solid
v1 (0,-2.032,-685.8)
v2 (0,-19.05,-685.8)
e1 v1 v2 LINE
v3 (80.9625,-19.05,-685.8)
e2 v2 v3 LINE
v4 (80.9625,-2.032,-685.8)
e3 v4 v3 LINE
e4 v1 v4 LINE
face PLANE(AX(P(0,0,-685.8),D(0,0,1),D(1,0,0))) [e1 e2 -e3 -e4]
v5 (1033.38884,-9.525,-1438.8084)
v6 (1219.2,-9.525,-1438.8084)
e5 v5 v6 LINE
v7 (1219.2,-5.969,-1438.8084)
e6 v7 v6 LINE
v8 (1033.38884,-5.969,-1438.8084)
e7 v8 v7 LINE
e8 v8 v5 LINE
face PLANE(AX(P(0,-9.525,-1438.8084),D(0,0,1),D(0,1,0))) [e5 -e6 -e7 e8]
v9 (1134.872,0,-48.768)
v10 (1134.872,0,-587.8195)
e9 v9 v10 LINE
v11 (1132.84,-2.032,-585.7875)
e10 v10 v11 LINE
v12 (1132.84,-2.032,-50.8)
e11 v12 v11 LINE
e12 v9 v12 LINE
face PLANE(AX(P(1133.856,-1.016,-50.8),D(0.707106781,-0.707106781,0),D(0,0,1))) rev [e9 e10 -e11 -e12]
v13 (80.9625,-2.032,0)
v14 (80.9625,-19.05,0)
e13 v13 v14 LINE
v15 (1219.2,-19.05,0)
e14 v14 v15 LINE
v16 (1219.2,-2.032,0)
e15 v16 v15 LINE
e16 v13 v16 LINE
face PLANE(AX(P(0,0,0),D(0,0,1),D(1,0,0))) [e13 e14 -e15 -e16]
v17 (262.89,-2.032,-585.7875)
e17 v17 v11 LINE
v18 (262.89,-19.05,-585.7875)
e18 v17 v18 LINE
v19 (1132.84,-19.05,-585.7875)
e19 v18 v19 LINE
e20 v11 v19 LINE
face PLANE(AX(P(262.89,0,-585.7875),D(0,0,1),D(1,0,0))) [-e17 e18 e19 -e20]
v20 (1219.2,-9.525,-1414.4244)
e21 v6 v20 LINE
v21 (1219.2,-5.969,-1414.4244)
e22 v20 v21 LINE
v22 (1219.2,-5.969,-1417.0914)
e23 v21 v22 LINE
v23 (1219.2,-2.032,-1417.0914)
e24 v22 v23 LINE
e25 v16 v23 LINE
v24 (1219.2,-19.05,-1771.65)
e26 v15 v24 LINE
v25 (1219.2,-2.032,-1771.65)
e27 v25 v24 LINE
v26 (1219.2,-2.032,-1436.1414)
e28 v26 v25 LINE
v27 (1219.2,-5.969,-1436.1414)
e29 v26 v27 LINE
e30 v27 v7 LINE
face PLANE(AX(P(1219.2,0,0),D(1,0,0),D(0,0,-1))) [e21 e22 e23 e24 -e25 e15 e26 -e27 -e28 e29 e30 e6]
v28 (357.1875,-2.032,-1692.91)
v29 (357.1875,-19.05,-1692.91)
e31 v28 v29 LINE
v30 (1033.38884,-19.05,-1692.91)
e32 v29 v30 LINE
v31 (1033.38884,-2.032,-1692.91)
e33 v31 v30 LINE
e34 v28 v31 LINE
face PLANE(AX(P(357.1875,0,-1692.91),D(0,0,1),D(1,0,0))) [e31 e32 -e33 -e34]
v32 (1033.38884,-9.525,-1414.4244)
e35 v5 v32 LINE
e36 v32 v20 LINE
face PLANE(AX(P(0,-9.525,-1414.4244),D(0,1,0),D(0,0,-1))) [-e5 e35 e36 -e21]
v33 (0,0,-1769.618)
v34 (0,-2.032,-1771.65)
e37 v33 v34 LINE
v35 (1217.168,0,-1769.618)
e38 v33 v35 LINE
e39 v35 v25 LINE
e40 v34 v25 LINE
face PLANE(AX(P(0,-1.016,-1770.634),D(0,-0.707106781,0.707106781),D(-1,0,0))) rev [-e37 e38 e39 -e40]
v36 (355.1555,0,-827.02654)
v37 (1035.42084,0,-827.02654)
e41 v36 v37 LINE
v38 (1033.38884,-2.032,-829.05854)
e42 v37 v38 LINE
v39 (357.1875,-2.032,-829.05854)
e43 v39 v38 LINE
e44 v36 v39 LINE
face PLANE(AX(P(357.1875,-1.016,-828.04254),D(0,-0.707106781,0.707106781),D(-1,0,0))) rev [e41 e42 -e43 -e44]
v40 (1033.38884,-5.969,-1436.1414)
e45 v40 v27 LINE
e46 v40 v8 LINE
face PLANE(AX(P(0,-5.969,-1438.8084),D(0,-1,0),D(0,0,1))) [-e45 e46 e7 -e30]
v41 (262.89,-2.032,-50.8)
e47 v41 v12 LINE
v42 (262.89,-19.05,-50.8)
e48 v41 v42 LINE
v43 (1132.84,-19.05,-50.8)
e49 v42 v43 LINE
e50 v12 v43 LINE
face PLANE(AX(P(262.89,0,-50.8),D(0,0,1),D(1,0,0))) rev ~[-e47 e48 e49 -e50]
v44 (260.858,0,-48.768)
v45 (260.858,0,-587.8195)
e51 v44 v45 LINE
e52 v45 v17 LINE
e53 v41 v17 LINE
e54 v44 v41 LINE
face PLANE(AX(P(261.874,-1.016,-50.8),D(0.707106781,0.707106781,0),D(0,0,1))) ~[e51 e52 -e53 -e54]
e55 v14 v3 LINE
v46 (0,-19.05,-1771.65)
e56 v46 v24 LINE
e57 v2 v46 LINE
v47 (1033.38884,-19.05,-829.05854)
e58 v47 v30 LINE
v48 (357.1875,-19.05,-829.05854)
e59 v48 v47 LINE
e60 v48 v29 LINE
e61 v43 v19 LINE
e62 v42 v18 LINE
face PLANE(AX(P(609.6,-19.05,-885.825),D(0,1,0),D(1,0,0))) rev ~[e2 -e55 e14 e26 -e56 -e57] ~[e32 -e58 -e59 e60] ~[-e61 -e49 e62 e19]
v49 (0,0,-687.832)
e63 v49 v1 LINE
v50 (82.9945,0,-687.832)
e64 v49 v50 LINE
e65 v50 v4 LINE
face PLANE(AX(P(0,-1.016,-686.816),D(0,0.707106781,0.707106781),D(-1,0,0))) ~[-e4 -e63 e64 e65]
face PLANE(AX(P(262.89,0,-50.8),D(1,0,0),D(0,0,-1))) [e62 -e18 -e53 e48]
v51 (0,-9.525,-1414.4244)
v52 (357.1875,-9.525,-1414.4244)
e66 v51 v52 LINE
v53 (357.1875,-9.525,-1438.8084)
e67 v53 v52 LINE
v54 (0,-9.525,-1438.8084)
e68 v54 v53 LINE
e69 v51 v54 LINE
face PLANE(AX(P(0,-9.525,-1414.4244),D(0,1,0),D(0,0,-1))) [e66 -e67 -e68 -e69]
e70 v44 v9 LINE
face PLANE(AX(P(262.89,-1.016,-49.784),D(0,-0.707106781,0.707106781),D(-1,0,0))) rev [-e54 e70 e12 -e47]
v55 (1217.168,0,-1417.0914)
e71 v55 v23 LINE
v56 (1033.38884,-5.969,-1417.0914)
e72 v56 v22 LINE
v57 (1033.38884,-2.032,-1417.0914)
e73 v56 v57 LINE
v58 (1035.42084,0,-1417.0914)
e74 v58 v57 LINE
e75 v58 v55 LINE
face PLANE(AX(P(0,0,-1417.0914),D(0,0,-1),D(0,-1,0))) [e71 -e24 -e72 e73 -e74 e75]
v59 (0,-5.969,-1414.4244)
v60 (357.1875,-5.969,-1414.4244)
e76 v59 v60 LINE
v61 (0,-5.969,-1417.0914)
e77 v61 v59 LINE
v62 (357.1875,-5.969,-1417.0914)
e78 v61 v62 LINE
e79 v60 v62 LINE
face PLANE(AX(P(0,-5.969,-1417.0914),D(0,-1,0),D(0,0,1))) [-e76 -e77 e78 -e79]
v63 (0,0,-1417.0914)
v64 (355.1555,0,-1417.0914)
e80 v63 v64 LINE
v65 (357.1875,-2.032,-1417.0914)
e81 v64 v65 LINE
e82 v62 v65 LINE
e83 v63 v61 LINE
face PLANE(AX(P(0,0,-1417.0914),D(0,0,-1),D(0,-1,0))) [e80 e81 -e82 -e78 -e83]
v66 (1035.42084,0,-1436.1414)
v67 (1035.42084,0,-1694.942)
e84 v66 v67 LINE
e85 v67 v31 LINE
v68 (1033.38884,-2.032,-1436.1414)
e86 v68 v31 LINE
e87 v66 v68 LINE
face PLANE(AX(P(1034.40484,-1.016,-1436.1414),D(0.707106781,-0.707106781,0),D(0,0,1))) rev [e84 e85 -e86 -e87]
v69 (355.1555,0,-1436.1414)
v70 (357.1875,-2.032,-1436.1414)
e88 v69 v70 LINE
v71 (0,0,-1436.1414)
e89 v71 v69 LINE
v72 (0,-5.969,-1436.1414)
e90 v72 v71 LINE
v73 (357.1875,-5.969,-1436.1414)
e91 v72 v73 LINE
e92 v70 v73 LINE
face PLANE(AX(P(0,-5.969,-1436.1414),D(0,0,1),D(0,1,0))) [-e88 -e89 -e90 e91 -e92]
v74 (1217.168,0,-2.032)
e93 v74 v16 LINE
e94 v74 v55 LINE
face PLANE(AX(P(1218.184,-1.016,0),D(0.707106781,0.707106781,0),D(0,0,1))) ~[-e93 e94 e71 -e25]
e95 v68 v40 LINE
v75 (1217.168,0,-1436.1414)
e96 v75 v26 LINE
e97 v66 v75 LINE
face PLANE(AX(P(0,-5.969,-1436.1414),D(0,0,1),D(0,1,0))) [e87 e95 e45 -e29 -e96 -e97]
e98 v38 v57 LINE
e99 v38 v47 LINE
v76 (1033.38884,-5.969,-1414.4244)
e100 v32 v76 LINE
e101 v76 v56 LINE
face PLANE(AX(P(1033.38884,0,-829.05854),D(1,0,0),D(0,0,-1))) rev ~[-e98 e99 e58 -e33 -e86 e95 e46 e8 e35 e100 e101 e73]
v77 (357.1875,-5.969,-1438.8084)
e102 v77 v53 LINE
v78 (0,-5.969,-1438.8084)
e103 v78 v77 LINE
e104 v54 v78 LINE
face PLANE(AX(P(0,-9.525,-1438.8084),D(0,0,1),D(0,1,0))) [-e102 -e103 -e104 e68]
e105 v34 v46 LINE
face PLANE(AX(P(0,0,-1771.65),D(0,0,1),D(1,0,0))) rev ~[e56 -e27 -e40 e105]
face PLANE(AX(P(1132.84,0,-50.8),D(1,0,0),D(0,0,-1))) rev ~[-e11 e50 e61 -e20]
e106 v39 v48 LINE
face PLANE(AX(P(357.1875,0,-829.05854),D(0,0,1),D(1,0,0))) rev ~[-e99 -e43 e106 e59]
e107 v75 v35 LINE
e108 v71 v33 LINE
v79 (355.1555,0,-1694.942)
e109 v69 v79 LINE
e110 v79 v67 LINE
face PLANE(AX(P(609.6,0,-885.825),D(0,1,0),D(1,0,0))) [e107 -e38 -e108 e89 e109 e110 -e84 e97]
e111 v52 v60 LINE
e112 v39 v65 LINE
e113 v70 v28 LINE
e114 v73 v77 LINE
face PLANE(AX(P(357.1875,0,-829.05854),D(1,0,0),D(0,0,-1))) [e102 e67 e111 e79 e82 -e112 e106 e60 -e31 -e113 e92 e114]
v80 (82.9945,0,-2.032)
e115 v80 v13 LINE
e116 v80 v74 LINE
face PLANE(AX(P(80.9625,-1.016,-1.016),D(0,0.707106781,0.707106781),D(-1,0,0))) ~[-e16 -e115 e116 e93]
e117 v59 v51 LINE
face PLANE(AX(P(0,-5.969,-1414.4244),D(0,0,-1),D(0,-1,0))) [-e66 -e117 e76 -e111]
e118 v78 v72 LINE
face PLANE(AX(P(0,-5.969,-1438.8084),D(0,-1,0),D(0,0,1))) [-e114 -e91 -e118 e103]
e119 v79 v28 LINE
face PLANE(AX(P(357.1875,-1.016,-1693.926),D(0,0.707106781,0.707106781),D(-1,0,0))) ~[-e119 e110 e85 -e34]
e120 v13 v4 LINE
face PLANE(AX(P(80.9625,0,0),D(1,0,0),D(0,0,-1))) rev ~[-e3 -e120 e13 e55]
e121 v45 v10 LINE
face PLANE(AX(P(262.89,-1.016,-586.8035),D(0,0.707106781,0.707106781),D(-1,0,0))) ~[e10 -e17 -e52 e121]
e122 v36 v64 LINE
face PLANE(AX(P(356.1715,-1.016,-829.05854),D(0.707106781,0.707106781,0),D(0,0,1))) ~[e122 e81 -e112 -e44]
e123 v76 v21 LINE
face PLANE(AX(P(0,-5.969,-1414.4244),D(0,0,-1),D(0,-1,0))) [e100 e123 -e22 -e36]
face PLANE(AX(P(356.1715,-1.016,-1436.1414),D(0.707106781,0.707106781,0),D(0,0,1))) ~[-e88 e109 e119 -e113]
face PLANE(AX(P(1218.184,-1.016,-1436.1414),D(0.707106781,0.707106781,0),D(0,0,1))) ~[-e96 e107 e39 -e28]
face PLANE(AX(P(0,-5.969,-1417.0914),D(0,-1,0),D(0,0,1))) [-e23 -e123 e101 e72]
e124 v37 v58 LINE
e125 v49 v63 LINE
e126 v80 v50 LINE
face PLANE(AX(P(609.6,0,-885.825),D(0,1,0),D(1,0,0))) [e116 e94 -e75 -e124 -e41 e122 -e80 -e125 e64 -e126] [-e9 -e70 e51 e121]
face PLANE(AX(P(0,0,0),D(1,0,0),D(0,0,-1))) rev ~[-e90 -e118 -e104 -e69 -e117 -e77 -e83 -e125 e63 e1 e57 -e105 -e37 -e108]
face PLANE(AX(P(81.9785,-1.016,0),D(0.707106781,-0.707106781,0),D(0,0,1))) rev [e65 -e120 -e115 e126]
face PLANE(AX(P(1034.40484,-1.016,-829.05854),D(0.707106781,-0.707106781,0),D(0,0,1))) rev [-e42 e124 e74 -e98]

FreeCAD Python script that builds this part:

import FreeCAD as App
import Part
import Sketcher

V = App.Vector
Q = App.Units.Quantity


def edges_at(feature, points):
    """Names of the edges that pass closest to the given points."""
    edges = feature.Shape.Edges
    near = lambda p: min(range(len(edges)), key=lambda i: edges[i].distToShape(Part.Vertex(*p))[0])
    return sorted({f"Edge{near(p) + 1}" for p in points})


def add_polygon(sketch, points):
    """Adds a closed chain of lines whose ends are joined by coincident constraints."""
    first, n = sketch.GeometryCount, len(points)
    for a, b in zip(points, points[1:] + points[:1]):
        sketch.addGeometry(Part.LineSegment(App.Vector(*a, 0), App.Vector(*b, 0)), False)
    for i in range(n):
        sketch.addConstraint(Sketcher.Constraint("Coincident", first + i, 2, first + (i + 1) % n, 1))

doc = App.newDocument("Part")
body = doc.addObject("PartDesign::Body", "Body")

# Sketch on XZ plane
sketch1 = body.newObject("Sketcher::SketchObject", "Sketch")
sketch1.AttachmentSupport = (doc.getObject("XZ_Plane"), [""])
sketch1.MapMode = "FlatFace"
add_polygon(sketch1, [(0, -1772), (0, 0), (1219, 0), (1219, -1772)])  # lines 0-3
sketch1.addConstraint(Sketcher.Constraint("Vertical", 0))
sketch1.addConstraint(Sketcher.Constraint("Horizontal", 1))
sketch1.addConstraint(Sketcher.Constraint("Vertical", 2))
sketch1.addConstraint(Sketcher.Constraint("Horizontal", 3))
sketch1.addConstraint(Sketcher.Constraint("Coincident", 0, 2, -1, 1))
sketch1.addConstraint(Sketcher.Constraint("DistanceX", 1, 1, 1, 2, Q("48 in")))
sketch1.addConstraint(Sketcher.Constraint("DistanceY", 0, 1, 0, 2, Q("69.75 in")))
pad1 = body.newObject("PartDesign::Pad", "Pad")
pad1.Profile = sketch1
pad1.Length = Q("0.75 in")

# Sketch on XZ plane
sketch2 = body.newObject("Sketcher::SketchObject", "Sketch001")
sketch2.AttachmentSupport = (doc.getObject("XZ_Plane"), [""])
sketch2.MapMode = "FlatFace"
add_polygon(sketch2, [(263, -586), (263, -51), (1133, -51), (1133, -586)])  # lines 0-3
sketch2.addConstraint(Sketcher.Constraint("Vertical", 0))
sketch2.addConstraint(Sketcher.Constraint("Horizontal", 1))
sketch2.addConstraint(Sketcher.Constraint("Vertical", 2))
sketch2.addConstraint(Sketcher.Constraint("Horizontal", 3))
sketch2.addConstraint(Sketcher.Constraint("DistanceY", 0, 2, -1, 1, Q("2 in")))
sketch2.addConstraint(Sketcher.Constraint("DistanceX", 1, 1, 1, 2, Q("34.25 in")))
sketch2.addConstraint(Sketcher.Constraint("DistanceX", -1, 1, 1, 2, Q("44.6 in")))
sketch2.addConstraint(Sketcher.Constraint("DistanceY", 0, 1, 0, 2, Q("21.0625 in")))
pocket1 = body.newObject("PartDesign::Pocket", "Pocket")
pocket1.Profile = sketch2
pocket1.Type = "ThroughAll"
pocket1.Reversed = True

# Sketch on XZ plane
sketch3 = body.newObject("Sketcher::SketchObject", "Sketch002")
sketch3.AttachmentSupport = (doc.getObject("XZ_Plane"), [""])
sketch3.MapMode = "FlatFace"
add_polygon(sketch3, [(0, -686), (0, 0), (81, 0), (81, -686)])  # lines 0-3
sketch3.addConstraint(Sketcher.Constraint("Vertical", 0))
sketch3.addConstraint(Sketcher.Constraint("Horizontal", 1))
sketch3.addConstraint(Sketcher.Constraint("Vertical", 2))
sketch3.addConstraint(Sketcher.Constraint("Horizontal", 3))
sketch3.addConstraint(Sketcher.Constraint("Coincident", 0, 2, -1, 1))
sketch3.addConstraint(Sketcher.Constraint("DistanceY", 0, 1, 0, 2, Q("27 in")))
sketch3.addConstraint(Sketcher.Constraint("DistanceX", 1, 1, 1, 2, Q("3.1875 in")))
pocket2 = body.newObject("PartDesign::Pocket", "Pocket001")
pocket2.Profile = sketch3
pocket2.Type = "ThroughAll"
pocket2.Reversed = True

# Sketch on XZ plane
sketch4 = body.newObject("Sketcher::SketchObject", "Sketch003")
sketch4.AttachmentSupport = (doc.getObject("XZ_Plane"), [""])
sketch4.MapMode = "FlatFace"
add_polygon(sketch4, [(357, -1693), (357, -829), (1033, -829), (1033, -1693)])  # lines 0-3
sketch4.addConstraint(Sketcher.Constraint("Vertical", 0))
sketch4.addConstraint(Sketcher.Constraint("Horizontal", 1))
sketch4.addConstraint(Sketcher.Constraint("Vertical", 2))
sketch4.addConstraint(Sketcher.Constraint("Horizontal", 3))
sketch4.addConstraint(Sketcher.Constraint("DistanceY", 2, 2, -1, 1, Q("66.65 in")))
sketch4.addConstraint(Sketcher.Constraint("DistanceX", 1, 1, 1, 2, Q("26.6221 in")))
sketch4.addConstraint(Sketcher.Constraint("DistanceY", 0, 1, 0, 2, Q("34.0099 in")))
sketch4.addConstraint(Sketcher.Constraint("DistanceX", -1, 1, 0, 2, Q("14.0625 in")))
pocket3 = body.newObject("PartDesign::Pocket", "Pocket002")
pocket3.Profile = sketch4
pocket3.Type = "ThroughAll"
pocket3.Reversed = True

# Sketch on YZ plane
sketch5 = body.newObject("Sketcher::SketchObject", "Sketch004")
sketch5.AttachmentSupport = (doc.getObject("YZ_Plane"), [""])
sketch5.MapMode = "FlatFace"
add_polygon(sketch5, [(0, -1417.1), (0, -1436.1), (-6, -1436.1), (-6, -1438.8), (-9.5, -1438.8), (-9.5, -1414.4), (-6, -1414.4), (-6, -1417.1)])  # lines 0-7
sketch5.addConstraint(Sketcher.Constraint("Vertical", 0))
sketch5.addConstraint(Sketcher.Constraint("Horizontal", 1))
sketch5.addConstraint(Sketcher.Constraint("Vertical", 2))
sketch5.addConstraint(Sketcher.Constraint("Horizontal", 3))
sketch5.addConstraint(Sketcher.Constraint("Vertical", 4))
sketch5.addConstraint(Sketcher.Constraint("Horizontal", 5))
sketch5.addConstraint(Sketcher.Constraint("Vertical", 6))
sketch5.addConstraint(Sketcher.Constraint("Horizontal", 7))
sketch5.addConstraint(Sketcher.Constraint("PointOnObject", 0, 2, -2))
sketch5.addConstraint(Sketcher.Constraint("Vertical", 2, 2, 5, 2))
sketch5.addConstraint(Sketcher.Constraint("Equal", 2, 6))
sketch5.addConstraint(Sketcher.Constraint("DistanceX", 3, 2, 3, 1, Q("0.14 in")))
sketch5.addConstraint(Sketcher.Constraint("DistanceY", 0, 2, 0, 1, Q("0.75 in")))
sketch5.addConstraint(Sketcher.Constraint("DistanceY", 4, 1, 4, 2, Q("0.96 in")))
sketch5.addConstraint(Sketcher.Constraint("DistanceX", 1, 2, 1, 1, Q("0.235 in")))
sketch5.addConstraint(Sketcher.Constraint("DistanceY", 0, 2, -1, 1, Q("56.541 in")))
pocket4 = body.newObject("PartDesign::Pocket", "Pocket003")
pocket4.Profile = sketch5
pocket4.Type = "ThroughAll"
pocket4.Reversed = True
doc.recompute()

chamfer = body.newObject("PartDesign::Chamfer", "Chamfer")
chamfer.Base = (pocket4, edges_at(pocket4, [
    (1132.84, 0, -318.294),
    (697.865, 0, -585.788),
    (262.89, 0, -318.294),
    (697.865, 0, -50.8),
    (650.081, 0, 0),
    (80.963, 0, -342.9),
    (40.481, 0, -685.8),
    (1033.389, 0, -1123.075),
    (695.288, 0, -1692.91),
    (357.188, 0, -1564.526),
    (695.288, 0, -829.059),
    (609.6, 0, -1771.65),
    (1219.2, 0, -708.546),
    (357.188, 0, -1123.075),
    (1033.389, 0, -1564.526),
    (1219.2, 0, -1603.896),
]))
chamfer.Size = Q("0.08 in")

doc.recompute()
